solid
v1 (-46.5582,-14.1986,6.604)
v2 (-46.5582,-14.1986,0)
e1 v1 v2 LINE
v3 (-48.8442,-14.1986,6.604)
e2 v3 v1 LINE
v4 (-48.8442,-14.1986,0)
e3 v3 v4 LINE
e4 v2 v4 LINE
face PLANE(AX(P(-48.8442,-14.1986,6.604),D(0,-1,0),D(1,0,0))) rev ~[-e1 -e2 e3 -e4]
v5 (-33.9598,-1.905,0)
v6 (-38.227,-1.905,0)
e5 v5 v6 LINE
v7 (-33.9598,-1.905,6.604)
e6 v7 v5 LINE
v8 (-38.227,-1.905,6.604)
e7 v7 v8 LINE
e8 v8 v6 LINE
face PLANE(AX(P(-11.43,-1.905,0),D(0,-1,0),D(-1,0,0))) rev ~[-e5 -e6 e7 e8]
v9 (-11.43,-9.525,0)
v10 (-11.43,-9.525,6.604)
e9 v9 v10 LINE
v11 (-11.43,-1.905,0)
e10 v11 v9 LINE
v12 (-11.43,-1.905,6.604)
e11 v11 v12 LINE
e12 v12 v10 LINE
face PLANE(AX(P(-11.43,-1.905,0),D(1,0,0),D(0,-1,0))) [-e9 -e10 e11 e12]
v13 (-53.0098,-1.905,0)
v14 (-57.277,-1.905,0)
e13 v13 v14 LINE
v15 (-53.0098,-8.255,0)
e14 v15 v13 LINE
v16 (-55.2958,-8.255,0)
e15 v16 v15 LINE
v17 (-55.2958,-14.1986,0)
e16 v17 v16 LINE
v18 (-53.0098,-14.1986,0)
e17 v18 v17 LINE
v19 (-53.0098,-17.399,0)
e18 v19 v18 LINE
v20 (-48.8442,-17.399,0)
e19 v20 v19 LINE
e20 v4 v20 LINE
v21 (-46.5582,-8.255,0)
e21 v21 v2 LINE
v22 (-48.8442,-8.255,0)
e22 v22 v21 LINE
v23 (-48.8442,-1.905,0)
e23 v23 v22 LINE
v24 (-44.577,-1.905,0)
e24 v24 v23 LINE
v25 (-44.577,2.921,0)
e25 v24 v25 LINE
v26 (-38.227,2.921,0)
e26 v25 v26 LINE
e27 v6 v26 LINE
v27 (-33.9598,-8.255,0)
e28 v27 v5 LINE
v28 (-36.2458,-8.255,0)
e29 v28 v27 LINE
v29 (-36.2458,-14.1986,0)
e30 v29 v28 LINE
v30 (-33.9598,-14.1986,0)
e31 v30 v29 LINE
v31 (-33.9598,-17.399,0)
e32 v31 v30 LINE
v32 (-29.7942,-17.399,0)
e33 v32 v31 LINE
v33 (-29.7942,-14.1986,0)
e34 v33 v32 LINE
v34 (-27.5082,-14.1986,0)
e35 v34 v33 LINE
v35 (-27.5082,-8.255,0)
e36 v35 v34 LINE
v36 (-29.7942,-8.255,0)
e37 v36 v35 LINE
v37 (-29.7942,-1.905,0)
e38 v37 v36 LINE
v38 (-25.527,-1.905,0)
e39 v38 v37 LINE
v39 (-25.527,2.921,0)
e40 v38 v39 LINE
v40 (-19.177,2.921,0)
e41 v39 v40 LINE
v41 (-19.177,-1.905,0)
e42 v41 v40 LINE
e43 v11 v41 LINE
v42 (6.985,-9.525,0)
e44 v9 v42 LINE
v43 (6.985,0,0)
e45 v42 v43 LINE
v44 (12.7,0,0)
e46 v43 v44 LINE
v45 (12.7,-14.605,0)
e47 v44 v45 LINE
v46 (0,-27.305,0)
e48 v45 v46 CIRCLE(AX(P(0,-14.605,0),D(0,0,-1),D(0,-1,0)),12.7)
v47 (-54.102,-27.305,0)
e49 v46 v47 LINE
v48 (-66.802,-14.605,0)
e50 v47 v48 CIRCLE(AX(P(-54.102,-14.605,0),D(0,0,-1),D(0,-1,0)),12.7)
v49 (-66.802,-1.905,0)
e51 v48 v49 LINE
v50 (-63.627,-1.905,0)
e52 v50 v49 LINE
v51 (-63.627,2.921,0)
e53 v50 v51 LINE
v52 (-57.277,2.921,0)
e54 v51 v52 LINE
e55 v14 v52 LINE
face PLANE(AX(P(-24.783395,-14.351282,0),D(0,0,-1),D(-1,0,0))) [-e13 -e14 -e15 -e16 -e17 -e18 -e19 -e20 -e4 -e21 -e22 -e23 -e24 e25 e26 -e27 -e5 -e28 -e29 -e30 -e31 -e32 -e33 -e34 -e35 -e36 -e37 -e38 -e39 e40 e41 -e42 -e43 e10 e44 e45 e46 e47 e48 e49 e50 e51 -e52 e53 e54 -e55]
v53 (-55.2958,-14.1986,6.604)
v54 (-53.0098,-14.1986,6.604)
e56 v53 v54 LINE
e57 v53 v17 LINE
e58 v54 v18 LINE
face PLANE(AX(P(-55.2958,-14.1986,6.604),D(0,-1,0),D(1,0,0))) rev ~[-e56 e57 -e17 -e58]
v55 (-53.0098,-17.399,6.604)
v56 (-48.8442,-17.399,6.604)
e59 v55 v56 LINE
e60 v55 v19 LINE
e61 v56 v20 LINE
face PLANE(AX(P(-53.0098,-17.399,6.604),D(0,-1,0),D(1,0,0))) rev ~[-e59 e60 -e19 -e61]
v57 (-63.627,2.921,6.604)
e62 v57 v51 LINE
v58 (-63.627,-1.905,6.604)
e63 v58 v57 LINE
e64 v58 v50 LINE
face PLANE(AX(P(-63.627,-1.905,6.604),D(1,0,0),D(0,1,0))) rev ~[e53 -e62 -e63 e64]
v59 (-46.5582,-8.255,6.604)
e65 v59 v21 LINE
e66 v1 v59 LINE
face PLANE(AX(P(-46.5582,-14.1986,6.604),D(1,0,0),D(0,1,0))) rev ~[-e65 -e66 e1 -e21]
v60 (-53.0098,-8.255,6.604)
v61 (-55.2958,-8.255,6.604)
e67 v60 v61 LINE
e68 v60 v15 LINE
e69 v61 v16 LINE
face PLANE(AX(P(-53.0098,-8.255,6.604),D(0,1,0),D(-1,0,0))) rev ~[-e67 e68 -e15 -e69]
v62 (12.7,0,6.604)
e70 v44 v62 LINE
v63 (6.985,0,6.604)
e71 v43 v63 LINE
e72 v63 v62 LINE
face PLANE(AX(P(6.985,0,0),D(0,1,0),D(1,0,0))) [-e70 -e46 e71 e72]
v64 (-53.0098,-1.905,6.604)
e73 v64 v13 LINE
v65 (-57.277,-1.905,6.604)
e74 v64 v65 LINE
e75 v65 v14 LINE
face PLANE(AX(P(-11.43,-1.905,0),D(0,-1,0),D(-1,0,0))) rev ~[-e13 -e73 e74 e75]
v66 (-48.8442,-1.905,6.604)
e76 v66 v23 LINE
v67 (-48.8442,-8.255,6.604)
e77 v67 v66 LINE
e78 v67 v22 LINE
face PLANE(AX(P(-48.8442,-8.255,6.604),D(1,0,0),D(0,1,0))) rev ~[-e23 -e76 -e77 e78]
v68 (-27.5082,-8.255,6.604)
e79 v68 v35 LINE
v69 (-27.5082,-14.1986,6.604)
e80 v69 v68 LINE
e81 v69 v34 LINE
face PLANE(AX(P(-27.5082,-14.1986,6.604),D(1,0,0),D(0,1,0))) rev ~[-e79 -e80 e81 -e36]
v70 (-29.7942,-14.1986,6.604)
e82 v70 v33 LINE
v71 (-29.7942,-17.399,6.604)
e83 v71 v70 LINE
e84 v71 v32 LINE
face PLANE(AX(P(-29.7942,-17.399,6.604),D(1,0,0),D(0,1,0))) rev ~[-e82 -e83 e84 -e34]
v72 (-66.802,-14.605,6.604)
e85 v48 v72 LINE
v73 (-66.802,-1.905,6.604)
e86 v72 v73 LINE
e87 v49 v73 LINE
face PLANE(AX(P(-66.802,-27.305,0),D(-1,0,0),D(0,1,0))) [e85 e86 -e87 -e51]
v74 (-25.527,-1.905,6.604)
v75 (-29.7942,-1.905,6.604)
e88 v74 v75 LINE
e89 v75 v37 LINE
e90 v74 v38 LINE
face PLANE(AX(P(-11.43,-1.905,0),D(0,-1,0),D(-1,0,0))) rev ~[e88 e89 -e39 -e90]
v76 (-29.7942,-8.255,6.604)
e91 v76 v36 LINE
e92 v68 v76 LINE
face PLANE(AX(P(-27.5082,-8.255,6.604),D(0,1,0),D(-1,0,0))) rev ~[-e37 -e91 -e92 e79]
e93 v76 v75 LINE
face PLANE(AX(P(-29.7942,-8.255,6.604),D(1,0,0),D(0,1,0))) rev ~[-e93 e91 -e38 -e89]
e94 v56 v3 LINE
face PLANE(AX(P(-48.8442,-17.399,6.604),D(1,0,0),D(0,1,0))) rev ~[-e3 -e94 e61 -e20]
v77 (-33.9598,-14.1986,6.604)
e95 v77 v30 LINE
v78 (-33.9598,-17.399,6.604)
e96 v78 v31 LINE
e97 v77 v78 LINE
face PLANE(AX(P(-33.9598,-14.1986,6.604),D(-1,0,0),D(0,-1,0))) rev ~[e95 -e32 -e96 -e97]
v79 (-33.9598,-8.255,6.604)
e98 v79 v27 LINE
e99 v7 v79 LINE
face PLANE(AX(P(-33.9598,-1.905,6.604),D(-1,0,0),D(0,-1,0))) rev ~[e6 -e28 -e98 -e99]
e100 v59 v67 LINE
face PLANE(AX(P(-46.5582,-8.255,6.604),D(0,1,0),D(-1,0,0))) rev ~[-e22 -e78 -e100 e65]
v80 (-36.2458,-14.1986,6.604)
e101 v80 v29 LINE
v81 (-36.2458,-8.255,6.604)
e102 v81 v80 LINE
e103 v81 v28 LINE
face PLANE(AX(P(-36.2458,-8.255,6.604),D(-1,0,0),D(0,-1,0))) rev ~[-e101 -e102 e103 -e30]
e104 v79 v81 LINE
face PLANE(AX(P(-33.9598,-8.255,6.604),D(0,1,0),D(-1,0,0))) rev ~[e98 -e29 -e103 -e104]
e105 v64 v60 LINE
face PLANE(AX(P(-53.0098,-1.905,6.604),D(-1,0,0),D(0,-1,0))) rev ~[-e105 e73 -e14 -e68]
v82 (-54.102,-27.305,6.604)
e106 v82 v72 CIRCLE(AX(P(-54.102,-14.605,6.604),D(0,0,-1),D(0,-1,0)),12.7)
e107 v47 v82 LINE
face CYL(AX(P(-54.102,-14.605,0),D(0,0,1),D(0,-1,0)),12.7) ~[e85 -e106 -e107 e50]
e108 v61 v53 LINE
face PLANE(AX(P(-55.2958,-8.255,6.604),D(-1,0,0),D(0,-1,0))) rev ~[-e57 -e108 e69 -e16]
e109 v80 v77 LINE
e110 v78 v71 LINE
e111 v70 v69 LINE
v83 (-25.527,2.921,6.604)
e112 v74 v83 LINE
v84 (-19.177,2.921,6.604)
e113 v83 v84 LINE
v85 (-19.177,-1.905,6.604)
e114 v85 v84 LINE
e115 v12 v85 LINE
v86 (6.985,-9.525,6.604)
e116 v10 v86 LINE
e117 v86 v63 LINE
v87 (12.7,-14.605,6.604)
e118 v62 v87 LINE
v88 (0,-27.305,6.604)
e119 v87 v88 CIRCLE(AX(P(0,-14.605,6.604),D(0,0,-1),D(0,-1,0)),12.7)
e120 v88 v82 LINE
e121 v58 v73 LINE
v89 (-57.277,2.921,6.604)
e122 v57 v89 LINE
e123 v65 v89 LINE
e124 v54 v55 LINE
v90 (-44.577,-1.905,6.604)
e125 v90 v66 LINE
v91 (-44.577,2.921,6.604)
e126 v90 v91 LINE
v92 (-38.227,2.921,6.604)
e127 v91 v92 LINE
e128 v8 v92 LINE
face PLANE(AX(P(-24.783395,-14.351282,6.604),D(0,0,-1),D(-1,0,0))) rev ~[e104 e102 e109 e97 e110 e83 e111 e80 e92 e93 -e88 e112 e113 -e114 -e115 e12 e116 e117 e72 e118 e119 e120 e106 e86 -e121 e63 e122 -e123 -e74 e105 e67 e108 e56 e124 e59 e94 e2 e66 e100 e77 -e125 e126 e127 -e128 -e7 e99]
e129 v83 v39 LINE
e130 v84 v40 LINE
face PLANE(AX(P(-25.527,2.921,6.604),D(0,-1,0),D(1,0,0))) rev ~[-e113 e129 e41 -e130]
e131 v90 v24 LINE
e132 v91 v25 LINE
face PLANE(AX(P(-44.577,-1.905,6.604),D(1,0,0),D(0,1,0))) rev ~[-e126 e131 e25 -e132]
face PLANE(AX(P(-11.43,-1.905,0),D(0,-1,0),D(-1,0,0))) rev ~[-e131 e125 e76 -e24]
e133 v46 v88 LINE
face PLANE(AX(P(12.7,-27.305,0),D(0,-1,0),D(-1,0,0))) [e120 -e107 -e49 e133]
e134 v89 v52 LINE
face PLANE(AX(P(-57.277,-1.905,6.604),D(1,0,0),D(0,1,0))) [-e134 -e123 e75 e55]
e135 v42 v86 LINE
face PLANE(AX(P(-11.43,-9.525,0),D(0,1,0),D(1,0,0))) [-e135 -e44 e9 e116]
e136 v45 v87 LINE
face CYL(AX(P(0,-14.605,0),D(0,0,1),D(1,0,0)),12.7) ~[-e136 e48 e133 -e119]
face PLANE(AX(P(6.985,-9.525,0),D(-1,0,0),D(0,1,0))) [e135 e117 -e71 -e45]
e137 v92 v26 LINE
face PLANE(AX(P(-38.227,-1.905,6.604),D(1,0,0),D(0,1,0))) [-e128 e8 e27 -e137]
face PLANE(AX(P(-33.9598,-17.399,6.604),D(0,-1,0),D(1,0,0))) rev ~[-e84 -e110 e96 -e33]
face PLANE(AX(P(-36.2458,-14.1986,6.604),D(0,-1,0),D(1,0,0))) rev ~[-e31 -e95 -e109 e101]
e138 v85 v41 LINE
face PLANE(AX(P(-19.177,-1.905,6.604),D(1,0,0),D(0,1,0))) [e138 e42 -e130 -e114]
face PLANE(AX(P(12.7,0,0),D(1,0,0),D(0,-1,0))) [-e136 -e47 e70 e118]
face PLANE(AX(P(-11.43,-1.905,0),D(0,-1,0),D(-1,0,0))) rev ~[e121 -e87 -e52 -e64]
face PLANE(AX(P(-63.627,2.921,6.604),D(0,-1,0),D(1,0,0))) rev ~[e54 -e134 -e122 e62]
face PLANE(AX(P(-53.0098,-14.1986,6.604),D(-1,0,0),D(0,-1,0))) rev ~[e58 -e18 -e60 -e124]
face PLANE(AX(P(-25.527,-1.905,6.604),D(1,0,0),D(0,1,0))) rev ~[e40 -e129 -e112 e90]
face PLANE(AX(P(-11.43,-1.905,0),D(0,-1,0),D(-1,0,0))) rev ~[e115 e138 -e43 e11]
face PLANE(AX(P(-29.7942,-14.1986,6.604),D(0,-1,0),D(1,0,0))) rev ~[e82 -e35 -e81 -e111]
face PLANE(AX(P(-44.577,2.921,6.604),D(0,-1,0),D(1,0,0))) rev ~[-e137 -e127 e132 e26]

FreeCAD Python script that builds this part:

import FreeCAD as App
import Part
import Sketcher
Q = App.Units.Quantity


def edges_at(feature, points):
    """Names of the edges that pass closest to the given points."""
    edges = feature.Shape.Edges
    near = lambda p: min(range(len(edges)), key=lambda i: edges[i].distToShape(Part.Vertex(*p))[0])
    return sorted({f"Edge{near(p) + 1}" for p in points})

doc = App.newDocument("Part")
params = doc.addObject("Spreadsheet::Sheet", "Params")
for row, (alias, value) in enumerate([
    ("sketch1_height", "1 in"),
    ("sketch1_height2", "0.3 in"),
    ("sketch1_width", "2.18 in"),
    ("sketch1_width2", "3.13 in"),
    ("sketch1_width3", "0.225 in"),
    ("pad1_length", "0.26 in"),
    ("fillet_radius", "0.5 in"),
    ("sketch2_width", "0.09 in"),
    ("sketch2_height", "0.25 in"),
    ("sketch2_width2", "0.164 in"),
    ("sketch2_height2", "0.234 in"),
    ("sketch2_height3", "0.126 in"),
    ("sketch3_width", "0.25 in"),
    ("sketch3_height", "0.19 in"),
    ("pad2_length", "0.26 in"),
], start=1):
    params.set(f"A{row}", alias)
    params.set(f"B{row}", "=" + value)
    params.setAlias(f"B{row}", alias)

body = doc.addObject("PartDesign::Body", "Body")

# Sketch on XY plane
sketch1 = doc.addObject("Sketcher::SketchObject", "Sketch")
body.addObject(sketch1)
sketch1.AttachmentSupport = (doc.XY_Plane, [""])
sketch1.MapMode = "FlatFace"
sketch1.addGeometry([
    Part.LineSegment(App.Vector(-11.43, -9.525, 0), App.Vector(-11.43, -1.905, 0)),  # 0
    Part.LineSegment(App.Vector(-11.43, -1.905, 0), App.Vector(-66.802, -1.905, 0)),  # 1
    Part.LineSegment(App.Vector(-66.802, -1.905, 0), App.Vector(-66.802, -27.305, 0)),  # 2
    Part.LineSegment(App.Vector(-66.802, -27.305, 0), App.Vector(12.7, -27.305, 0)),  # 3
    Part.LineSegment(App.Vector(12.7, -27.305, 0), App.Vector(12.7, 0, 0)),  # 4
    Part.LineSegment(App.Vector(12.7, 0, 0), App.Vector(6.985, 0, 0)),  # 5
    Part.LineSegment(App.Vector(6.985, 0, 0), App.Vector(6.985, -9.525, 0)),  # 6
    Part.LineSegment(App.Vector(6.985, -9.525, 0), App.Vector(-11.43, -9.525, 0)),  # 7
], False)
sketch1.addConstraint([
    Sketcher.Constraint("Coincident", 0, 2, 1, 1),
    Sketcher.Constraint("Coincident", 1, 2, 2, 1),
    Sketcher.Constraint("Coincident", 2, 2, 3, 1),
    Sketcher.Constraint("Coincident", 3, 2, 4, 1),
    Sketcher.Constraint("Coincident", 4, 2, 5, 1),
    Sketcher.Constraint("Coincident", 5, 2, 6, 1),
    Sketcher.Constraint("Coincident", 6, 2, 7, 1),
    Sketcher.Constraint("Coincident", 7, 2, 0, 1),
    Sketcher.Constraint("Vertical", 0),
    Sketcher.Constraint("Horizontal", 1),
    Sketcher.Constraint("Vertical", 2),
    Sketcher.Constraint("Horizontal", 3),
    Sketcher.Constraint("Vertical", 4),
    Sketcher.Constraint("Horizontal", 5),
    Sketcher.Constraint("Vertical", 6),
    Sketcher.Constraint("Horizontal", 7),
    Sketcher.Constraint("PointOnObject", 4, 2, -1),
    Sketcher.Constraint("DistanceY", 2, 2, 2, 1, Q("1 in")),
    Sketcher.Constraint("DistanceY", 0, 1, 0, 2, Q("0.3 in")),
    Sketcher.Constraint("DistanceX", 1, 2, 1, 1, Q("2.18 in")),
    Sketcher.Constraint("DistanceX", 3, 1, 3, 2, Q("3.13 in")),
    Sketcher.Constraint("DistanceX", -1, 1, 3, 2, Q("0.5 in")),
    Sketcher.Constraint("DistanceX", 5, 2, 5, 1, Q("0.225 in")),
    Sketcher.Constraint("DistanceY", 4, 1, 4, 2, Q("1.075 in")),
])
sketch1.setExpression("Constraints[17]", "Params.sketch1_height")
sketch1.setExpression("Constraints[18]", "Params.sketch1_height2")
sketch1.setExpression("Constraints[19]", "Params.sketch1_width")
sketch1.setExpression("Constraints[20]", "Params.sketch1_width2")
sketch1.setExpression("Constraints[22]", "Params.sketch1_width3")
pad1 = doc.addObject("PartDesign::Pad", "Pad")
body.addObject(pad1)
pad1.Profile = sketch1
pad1.setExpression("Length", "Params.pad1_length")
doc.recompute()

fillet = doc.addObject("PartDesign::Fillet", "Fillet")
body.addObject(fillet)
fillet.Base = (pad1, edges_at(pad1, [(12.7, -27.305, 3.302), (-66.802, -27.305, 3.302)]))
fillet.setExpression("Radius", "Params.fillet_radius")

# Sketch on XY plane
sketch2 = doc.addObject("Sketcher::SketchObject", "Sketch001")
body.addObject(sketch2)
sketch2.AttachmentSupport = (doc.XY_Plane, [""])
sketch2.MapMode = "FlatFace"
sketch2.AttachmentOffset = App.Placement(App.Vector(0, 0, 0.26 * 25.4), App.Rotation())
sketch2.addGeometry([
    Part.LineSegment(App.Vector(-53.0098, -1.905, 0), App.Vector(-53.0098, -8.255, 0)),  # 0
    Part.LineSegment(App.Vector(-53.0098, -8.255, 0), App.Vector(-55.2958, -8.255, 0)),  # 1
    Part.LineSegment(App.Vector(-55.2958, -8.255, 0), App.Vector(-55.2958, -14.1986, 0)),  # 2
    Part.LineSegment(App.Vector(-55.2958, -14.1986, 0), App.Vector(-53.0098, -14.1986, 0)),  # 3
    Part.LineSegment(App.Vector(-53.0098, -14.1986, 0), App.Vector(-53.0098, -17.399, 0)),  # 4
    Part.LineSegment(App.Vector(-53.0098, -17.399, 0), App.Vector(-48.8442, -17.399, 0)),  # 5
    Part.LineSegment(App.Vector(-48.8442, -17.399, 0), App.Vector(-48.8442, -14.1986, 0)),  # 6
    Part.LineSegment(App.Vector(-48.8442, -14.1986, 0), App.Vector(-46.5582, -14.1986, 0)),  # 7
    Part.LineSegment(App.Vector(-46.5582, -14.1986, 0), App.Vector(-46.5582, -8.255, 0)),  # 8
    Part.LineSegment(App.Vector(-46.5582, -8.255, 0), App.Vector(-48.8442, -8.255, 0)),  # 9
    Part.LineSegment(App.Vector(-48.8442, -8.255, 0), App.Vector(-48.8442, -1.905, 0)),  # 10
    Part.LineSegment(App.Vector(-48.8442, -1.905, 0), App.Vector(-53.0098, -1.905, 0)),  # 11
    Part.LineSegment(App.Vector(-33.9598, -1.905, 0), App.Vector(-33.9598, -8.255, 0)),  # 12
    Part.LineSegment(App.Vector(-33.9598, -8.255, 0), App.Vector(-36.2458, -8.255, 0)),  # 13
    Part.LineSegment(App.Vector(-36.2458, -8.255, 0), App.Vector(-36.2458, -14.1986, 0)),  # 14
    Part.LineSegment(App.Vector(-36.2458, -14.1986, 0), App.Vector(-33.9598, -14.1986, 0)),  # 15
    Part.LineSegment(App.Vector(-33.9598, -14.1986, 0), App.Vector(-33.9598, -17.399, 0)),  # 16
    Part.LineSegment(App.Vector(-33.9598, -17.399, 0), App.Vector(-29.7942, -17.399, 0)),  # 17
    Part.LineSegment(App.Vector(-29.7942, -17.399, 0), App.Vector(-29.7942, -14.1986, 0)),  # 18
    Part.LineSegment(App.Vector(-29.7942, -14.1986, 0), App.Vector(-27.5082, -14.1986, 0)),  # 19
    Part.LineSegment(App.Vector(-27.5082, -14.1986, 0), App.Vector(-27.5082, -8.255, 0)),  # 20
    Part.LineSegment(App.Vector(-27.5082, -8.255, 0), App.Vector(-29.7942, -8.255, 0)),  # 21
    Part.LineSegment(App.Vector(-29.7942, -8.255, 0), App.Vector(-29.7942, -1.905, 0)),  # 22
    Part.LineSegment(App.Vector(-29.7942, -1.905, 0), App.Vector(-33.9598, -1.905, 0)),  # 23
], False)
sketch2.addConstraint([
    Sketcher.Constraint("Coincident", 0, 2, 1, 1),
    Sketcher.Constraint("Coincident", 1, 2, 2, 1),
    Sketcher.Constraint("Coincident", 2, 2, 3, 1),
    Sketcher.Constraint("Coincident", 3, 2, 4, 1),
    Sketcher.Constraint("Coincident", 4, 2, 5, 1),
    Sketcher.Constraint("Coincident", 5, 2, 6, 1),
    Sketcher.Constraint("Coincident", 6, 2, 7, 1),
    Sketcher.Constraint("Coincident", 7, 2, 8, 1),
    Sketcher.Constraint("Coincident", 8, 2, 9, 1),
    Sketcher.Constraint("Coincident", 9, 2, 10, 1),
    Sketcher.Constraint("Coincident", 10, 2, 11, 1),
    Sketcher.Constraint("Coincident", 11, 2, 0, 1),
    Sketcher.Constraint("Coincident", 12, 2, 13, 1),
    Sketcher.Constraint("Coincident", 13, 2, 14, 1),
    Sketcher.Constraint("Coincident", 14, 2, 15, 1),
    Sketcher.Constraint("Coincident", 15, 2, 16, 1),
    Sketcher.Constraint("Coincident", 16, 2, 17, 1),
    Sketcher.Constraint("Coincident", 17, 2, 18, 1),
    Sketcher.Constraint("Coincident", 18, 2, 19, 1),
    Sketcher.Constraint("Coincident", 19, 2, 20, 1),
    Sketcher.Constraint("Coincident", 20, 2, 21, 1),
    Sketcher.Constraint("Coincident", 21, 2, 22, 1),
    Sketcher.Constraint("Coincident", 22, 2, 23, 1),
    Sketcher.Constraint("Coincident", 23, 2, 12, 1),
    Sketcher.Constraint("Vertical", 0),
    Sketcher.Constraint("Horizontal", 1),
    Sketcher.Constraint("Vertical", 2),
    Sketcher.Constraint("Horizontal", 3),
    Sketcher.Constraint("Vertical", 4),
    Sketcher.Constraint("Horizontal", 5),
    Sketcher.Constraint("Vertical", 6),
    Sketcher.Constraint("Horizontal", 7),
    Sketcher.Constraint("Vertical", 8),
    Sketcher.Constraint("Horizontal", 9),
    Sketcher.Constraint("Vertical", 10),
    Sketcher.Constraint("Horizontal", 11),
    Sketcher.Constraint("Vertical", 12),
    Sketcher.Constraint("Horizontal", 13),
    Sketcher.Constraint("Vertical", 14),
    Sketcher.Constraint("Horizontal", 15),
    Sketcher.Constraint("Vertical", 16),
    Sketcher.Constraint("Horizontal", 17),
    Sketcher.Constraint("Vertical", 18),
    Sketcher.Constraint("Horizontal", 19),
    Sketcher.Constraint("Vertical", 20),
    Sketcher.Constraint("Horizontal", 21),
    Sketcher.Constraint("Vertical", 22),
    Sketcher.Constraint("Horizontal", 23),
    Sketcher.Constraint("Horizontal", 3, 2, 6, 2),
    Sketcher.Constraint("Horizontal", 1, 2, 8, 2),
    Sketcher.Constraint("Horizontal", 9, 2, 12, 2),
    Sketcher.Constraint("Horizontal", 7, 2, 14, 2),
    Sketcher.Constraint("Horizontal", 5, 2, 16, 2),
    Sketcher.Constraint("Horizontal", 15, 2, 18, 2),
    Sketcher.Constraint("Horizontal", 13, 2, 20, 2),
    Sketcher.Constraint("Horizontal", 11, 2, 22, 2),
    Sketcher.Constraint("Vertical", 0, 2, 3, 2),
    Sketcher.Constraint("Vertical", 6, 2, 9, 2),
    Sketcher.Constraint("Vertical", 12, 2, 15, 2),
    Sketcher.Constraint("Vertical", 18, 2, 21, 2),
    Sketcher.Constraint("Equal", 3, 7),
    Sketcher.Constraint("Equal", 9, 13),
    Sketcher.Constraint("Equal", 11, 17),
    Sketcher.Constraint("Equal", 15, 19),
    Sketcher.Constraint("DistanceX", 1, 2, 1, 1, Q("0.09 in")),
    Sketcher.Constraint("DistanceY", 0, 2, 0, 1, Q("0.25 in")),
    Sketcher.Constraint("DistanceX", 5, 1, 5, 2, Q("0.164 in")),
    Sketcher.Constraint("DistanceY", 2, 2, 2, 1, Q("0.234 in")),
    Sketcher.Constraint("DistanceY", 4, 2, 4, 1, Q("0.126 in")),
    Sketcher.Constraint("DistanceX", 0, 2, -1, 1, Q("2.087 in")),
    Sketcher.Constraint("DistanceY", 0, 2, -1, 1, Q("0.325 in")),
    Sketcher.Constraint("DistanceX", 12, 2, -1, 1, Q("1.337 in")),
])
sketch2.setExpression("Constraints[64]", "Params.sketch2_width")
sketch2.setExpression("Constraints[65]", "Params.sketch2_height")
sketch2.setExpression("Constraints[66]", "Params.sketch2_width2")
sketch2.setExpression("Constraints[67]", "Params.sketch2_height2")
sketch2.setExpression("Constraints[68]", "Params.sketch2_height3")
pocket1 = doc.addObject("PartDesign::Pocket", "Pocket")
body.addObject(pocket1)
pocket1.Profile = sketch2
pocket1.Type = "ThroughAll"

# Sketch on XY plane
sketch3 = doc.addObject("Sketcher::SketchObject", "Sketch002")
body.addObject(sketch3)
sketch3.AttachmentSupport = (doc.XY_Plane, [""])
sketch3.MapMode = "FlatFace"
sketch3.AttachmentOffset = App.Placement(App.Vector(0, 0, 0.26 * 25.4), App.Rotation())
sketch3.addGeometry([
    Part.LineSegment(App.Vector(-63.627, 2.921, 0), App.Vector(-63.627, -1.905, 0)),  # 0
    Part.LineSegment(App.Vector(-63.627, -1.905, 0), App.Vector(-57.277, -1.905, 0)),  # 1
    Part.LineSegment(App.Vector(-57.277, -1.905, 0), App.Vector(-57.277, 2.921, 0)),  # 2
    Part.LineSegment(App.Vector(-57.277, 2.921, 0), App.Vector(-63.627, 2.921, 0)),  # 3
    Part.LineSegment(App.Vector(-44.577, 2.921, 0), App.Vector(-44.577, -1.905, 0)),  # 4
    Part.LineSegment(App.Vector(-44.577, -1.905, 0), App.Vector(-38.227, -1.905, 0)),  # 5
    Part.LineSegment(App.Vector(-38.227, -1.905, 0), App.Vector(-38.227, 2.921, 0)),  # 6
    Part.LineSegment(App.Vector(-38.227, 2.921, 0), App.Vector(-44.577, 2.921, 0)),  # 7
    Part.LineSegment(App.Vector(-25.527, 2.921, 0), App.Vector(-25.527, -1.905, 0)),  # 8
    Part.LineSegment(App.Vector(-25.527, -1.905, 0), App.Vector(-19.177, -1.905, 0)),  # 9
    Part.LineSegment(App.Vector(-19.177, -1.905, 0), App.Vector(-19.177, 2.921, 0)),  # 10
    Part.LineSegment(App.Vector(-19.177, 2.921, 0), App.Vector(-25.527, 2.921, 0)),  # 11
], False)
sketch3.addConstraint([
    Sketcher.Constraint("Coincident", 0, 2, 1, 1),
    Sketcher.Constraint("Coincident", 1, 2, 2, 1),
    Sketcher.Constraint("Coincident", 2, 2, 3, 1),
    Sketcher.Constraint("Coincident", 3, 2, 0, 1),
    Sketcher.Constraint("Coincident", 4, 2, 5, 1),
    Sketcher.Constraint("Coincident", 5, 2, 6, 1),
    Sketcher.Constraint("Coincident", 6, 2, 7, 1),
    Sketcher.Constraint("Coincident", 7, 2, 4, 1),
    Sketcher.Constraint("Coincident", 8, 2, 9, 1),
    Sketcher.Constraint("Coincident", 9, 2, 10, 1),
    Sketcher.Constraint("Coincident", 10, 2, 11, 1),
    Sketcher.Constraint("Coincident", 11, 2, 8, 1),
    Sketcher.Constraint("Vertical", 0),
    Sketcher.Constraint("Horizontal", 1),
    Sketcher.Constraint("Vertical", 2),
    Sketcher.Constraint("Horizontal", 3),
    Sketcher.Constraint("Vertical", 4),
    Sketcher.Constraint("Horizontal", 5),
    Sketcher.Constraint("Vertical", 6),
    Sketcher.Constraint("Horizontal", 7),
    Sketcher.Constraint("Vertical", 8),
    Sketcher.Constraint("Horizontal", 9),
    Sketcher.Constraint("Vertical", 10),
    Sketcher.Constraint("Horizontal", 11),
    Sketcher.Constraint("Horizontal", 1, 2, 4, 2),
    Sketcher.Constraint("Horizontal", 3, 2, 6, 2),
    Sketcher.Constraint("Horizontal", 5, 2, 8, 2),
    Sketcher.Constraint("Horizontal", 7, 2, 10, 2),
    Sketcher.Constraint("Equal", 3, 5),
    Sketcher.Constraint("Equal", 7, 9),
    Sketcher.Constraint("DistanceX", 0, 2, 5, 2, Q("1 in")),
    Sketcher.Constraint("DistanceX", 4, 2, 9, 2, Q("1 in")),
    Sketcher.Constraint("DistanceX", 1, 1, 1, 2, Q("0.25 in")),
    Sketcher.Constraint("DistanceY", 0, 2, 0, 1, Q("0.19 in")),
    Sketcher.Constraint("DistanceX", 0, 2, -1, 1, Q("2.505 in")),
    Sketcher.Constraint("DistanceY", 0, 2, -1, 1, Q("0.075 in")),
])
sketch3.setExpression("Constraints[32]", "Params.sketch3_width")
sketch3.setExpression("Constraints[33]", "Params.sketch3_height")
pad2 = doc.addObject("PartDesign::Pad", "Pad001")
body.addObject(pad2)
pad2.Profile = sketch3
pad2.setExpression("Length", "Params.pad2_length")
pad2.Reversed = True

doc.recompute()
